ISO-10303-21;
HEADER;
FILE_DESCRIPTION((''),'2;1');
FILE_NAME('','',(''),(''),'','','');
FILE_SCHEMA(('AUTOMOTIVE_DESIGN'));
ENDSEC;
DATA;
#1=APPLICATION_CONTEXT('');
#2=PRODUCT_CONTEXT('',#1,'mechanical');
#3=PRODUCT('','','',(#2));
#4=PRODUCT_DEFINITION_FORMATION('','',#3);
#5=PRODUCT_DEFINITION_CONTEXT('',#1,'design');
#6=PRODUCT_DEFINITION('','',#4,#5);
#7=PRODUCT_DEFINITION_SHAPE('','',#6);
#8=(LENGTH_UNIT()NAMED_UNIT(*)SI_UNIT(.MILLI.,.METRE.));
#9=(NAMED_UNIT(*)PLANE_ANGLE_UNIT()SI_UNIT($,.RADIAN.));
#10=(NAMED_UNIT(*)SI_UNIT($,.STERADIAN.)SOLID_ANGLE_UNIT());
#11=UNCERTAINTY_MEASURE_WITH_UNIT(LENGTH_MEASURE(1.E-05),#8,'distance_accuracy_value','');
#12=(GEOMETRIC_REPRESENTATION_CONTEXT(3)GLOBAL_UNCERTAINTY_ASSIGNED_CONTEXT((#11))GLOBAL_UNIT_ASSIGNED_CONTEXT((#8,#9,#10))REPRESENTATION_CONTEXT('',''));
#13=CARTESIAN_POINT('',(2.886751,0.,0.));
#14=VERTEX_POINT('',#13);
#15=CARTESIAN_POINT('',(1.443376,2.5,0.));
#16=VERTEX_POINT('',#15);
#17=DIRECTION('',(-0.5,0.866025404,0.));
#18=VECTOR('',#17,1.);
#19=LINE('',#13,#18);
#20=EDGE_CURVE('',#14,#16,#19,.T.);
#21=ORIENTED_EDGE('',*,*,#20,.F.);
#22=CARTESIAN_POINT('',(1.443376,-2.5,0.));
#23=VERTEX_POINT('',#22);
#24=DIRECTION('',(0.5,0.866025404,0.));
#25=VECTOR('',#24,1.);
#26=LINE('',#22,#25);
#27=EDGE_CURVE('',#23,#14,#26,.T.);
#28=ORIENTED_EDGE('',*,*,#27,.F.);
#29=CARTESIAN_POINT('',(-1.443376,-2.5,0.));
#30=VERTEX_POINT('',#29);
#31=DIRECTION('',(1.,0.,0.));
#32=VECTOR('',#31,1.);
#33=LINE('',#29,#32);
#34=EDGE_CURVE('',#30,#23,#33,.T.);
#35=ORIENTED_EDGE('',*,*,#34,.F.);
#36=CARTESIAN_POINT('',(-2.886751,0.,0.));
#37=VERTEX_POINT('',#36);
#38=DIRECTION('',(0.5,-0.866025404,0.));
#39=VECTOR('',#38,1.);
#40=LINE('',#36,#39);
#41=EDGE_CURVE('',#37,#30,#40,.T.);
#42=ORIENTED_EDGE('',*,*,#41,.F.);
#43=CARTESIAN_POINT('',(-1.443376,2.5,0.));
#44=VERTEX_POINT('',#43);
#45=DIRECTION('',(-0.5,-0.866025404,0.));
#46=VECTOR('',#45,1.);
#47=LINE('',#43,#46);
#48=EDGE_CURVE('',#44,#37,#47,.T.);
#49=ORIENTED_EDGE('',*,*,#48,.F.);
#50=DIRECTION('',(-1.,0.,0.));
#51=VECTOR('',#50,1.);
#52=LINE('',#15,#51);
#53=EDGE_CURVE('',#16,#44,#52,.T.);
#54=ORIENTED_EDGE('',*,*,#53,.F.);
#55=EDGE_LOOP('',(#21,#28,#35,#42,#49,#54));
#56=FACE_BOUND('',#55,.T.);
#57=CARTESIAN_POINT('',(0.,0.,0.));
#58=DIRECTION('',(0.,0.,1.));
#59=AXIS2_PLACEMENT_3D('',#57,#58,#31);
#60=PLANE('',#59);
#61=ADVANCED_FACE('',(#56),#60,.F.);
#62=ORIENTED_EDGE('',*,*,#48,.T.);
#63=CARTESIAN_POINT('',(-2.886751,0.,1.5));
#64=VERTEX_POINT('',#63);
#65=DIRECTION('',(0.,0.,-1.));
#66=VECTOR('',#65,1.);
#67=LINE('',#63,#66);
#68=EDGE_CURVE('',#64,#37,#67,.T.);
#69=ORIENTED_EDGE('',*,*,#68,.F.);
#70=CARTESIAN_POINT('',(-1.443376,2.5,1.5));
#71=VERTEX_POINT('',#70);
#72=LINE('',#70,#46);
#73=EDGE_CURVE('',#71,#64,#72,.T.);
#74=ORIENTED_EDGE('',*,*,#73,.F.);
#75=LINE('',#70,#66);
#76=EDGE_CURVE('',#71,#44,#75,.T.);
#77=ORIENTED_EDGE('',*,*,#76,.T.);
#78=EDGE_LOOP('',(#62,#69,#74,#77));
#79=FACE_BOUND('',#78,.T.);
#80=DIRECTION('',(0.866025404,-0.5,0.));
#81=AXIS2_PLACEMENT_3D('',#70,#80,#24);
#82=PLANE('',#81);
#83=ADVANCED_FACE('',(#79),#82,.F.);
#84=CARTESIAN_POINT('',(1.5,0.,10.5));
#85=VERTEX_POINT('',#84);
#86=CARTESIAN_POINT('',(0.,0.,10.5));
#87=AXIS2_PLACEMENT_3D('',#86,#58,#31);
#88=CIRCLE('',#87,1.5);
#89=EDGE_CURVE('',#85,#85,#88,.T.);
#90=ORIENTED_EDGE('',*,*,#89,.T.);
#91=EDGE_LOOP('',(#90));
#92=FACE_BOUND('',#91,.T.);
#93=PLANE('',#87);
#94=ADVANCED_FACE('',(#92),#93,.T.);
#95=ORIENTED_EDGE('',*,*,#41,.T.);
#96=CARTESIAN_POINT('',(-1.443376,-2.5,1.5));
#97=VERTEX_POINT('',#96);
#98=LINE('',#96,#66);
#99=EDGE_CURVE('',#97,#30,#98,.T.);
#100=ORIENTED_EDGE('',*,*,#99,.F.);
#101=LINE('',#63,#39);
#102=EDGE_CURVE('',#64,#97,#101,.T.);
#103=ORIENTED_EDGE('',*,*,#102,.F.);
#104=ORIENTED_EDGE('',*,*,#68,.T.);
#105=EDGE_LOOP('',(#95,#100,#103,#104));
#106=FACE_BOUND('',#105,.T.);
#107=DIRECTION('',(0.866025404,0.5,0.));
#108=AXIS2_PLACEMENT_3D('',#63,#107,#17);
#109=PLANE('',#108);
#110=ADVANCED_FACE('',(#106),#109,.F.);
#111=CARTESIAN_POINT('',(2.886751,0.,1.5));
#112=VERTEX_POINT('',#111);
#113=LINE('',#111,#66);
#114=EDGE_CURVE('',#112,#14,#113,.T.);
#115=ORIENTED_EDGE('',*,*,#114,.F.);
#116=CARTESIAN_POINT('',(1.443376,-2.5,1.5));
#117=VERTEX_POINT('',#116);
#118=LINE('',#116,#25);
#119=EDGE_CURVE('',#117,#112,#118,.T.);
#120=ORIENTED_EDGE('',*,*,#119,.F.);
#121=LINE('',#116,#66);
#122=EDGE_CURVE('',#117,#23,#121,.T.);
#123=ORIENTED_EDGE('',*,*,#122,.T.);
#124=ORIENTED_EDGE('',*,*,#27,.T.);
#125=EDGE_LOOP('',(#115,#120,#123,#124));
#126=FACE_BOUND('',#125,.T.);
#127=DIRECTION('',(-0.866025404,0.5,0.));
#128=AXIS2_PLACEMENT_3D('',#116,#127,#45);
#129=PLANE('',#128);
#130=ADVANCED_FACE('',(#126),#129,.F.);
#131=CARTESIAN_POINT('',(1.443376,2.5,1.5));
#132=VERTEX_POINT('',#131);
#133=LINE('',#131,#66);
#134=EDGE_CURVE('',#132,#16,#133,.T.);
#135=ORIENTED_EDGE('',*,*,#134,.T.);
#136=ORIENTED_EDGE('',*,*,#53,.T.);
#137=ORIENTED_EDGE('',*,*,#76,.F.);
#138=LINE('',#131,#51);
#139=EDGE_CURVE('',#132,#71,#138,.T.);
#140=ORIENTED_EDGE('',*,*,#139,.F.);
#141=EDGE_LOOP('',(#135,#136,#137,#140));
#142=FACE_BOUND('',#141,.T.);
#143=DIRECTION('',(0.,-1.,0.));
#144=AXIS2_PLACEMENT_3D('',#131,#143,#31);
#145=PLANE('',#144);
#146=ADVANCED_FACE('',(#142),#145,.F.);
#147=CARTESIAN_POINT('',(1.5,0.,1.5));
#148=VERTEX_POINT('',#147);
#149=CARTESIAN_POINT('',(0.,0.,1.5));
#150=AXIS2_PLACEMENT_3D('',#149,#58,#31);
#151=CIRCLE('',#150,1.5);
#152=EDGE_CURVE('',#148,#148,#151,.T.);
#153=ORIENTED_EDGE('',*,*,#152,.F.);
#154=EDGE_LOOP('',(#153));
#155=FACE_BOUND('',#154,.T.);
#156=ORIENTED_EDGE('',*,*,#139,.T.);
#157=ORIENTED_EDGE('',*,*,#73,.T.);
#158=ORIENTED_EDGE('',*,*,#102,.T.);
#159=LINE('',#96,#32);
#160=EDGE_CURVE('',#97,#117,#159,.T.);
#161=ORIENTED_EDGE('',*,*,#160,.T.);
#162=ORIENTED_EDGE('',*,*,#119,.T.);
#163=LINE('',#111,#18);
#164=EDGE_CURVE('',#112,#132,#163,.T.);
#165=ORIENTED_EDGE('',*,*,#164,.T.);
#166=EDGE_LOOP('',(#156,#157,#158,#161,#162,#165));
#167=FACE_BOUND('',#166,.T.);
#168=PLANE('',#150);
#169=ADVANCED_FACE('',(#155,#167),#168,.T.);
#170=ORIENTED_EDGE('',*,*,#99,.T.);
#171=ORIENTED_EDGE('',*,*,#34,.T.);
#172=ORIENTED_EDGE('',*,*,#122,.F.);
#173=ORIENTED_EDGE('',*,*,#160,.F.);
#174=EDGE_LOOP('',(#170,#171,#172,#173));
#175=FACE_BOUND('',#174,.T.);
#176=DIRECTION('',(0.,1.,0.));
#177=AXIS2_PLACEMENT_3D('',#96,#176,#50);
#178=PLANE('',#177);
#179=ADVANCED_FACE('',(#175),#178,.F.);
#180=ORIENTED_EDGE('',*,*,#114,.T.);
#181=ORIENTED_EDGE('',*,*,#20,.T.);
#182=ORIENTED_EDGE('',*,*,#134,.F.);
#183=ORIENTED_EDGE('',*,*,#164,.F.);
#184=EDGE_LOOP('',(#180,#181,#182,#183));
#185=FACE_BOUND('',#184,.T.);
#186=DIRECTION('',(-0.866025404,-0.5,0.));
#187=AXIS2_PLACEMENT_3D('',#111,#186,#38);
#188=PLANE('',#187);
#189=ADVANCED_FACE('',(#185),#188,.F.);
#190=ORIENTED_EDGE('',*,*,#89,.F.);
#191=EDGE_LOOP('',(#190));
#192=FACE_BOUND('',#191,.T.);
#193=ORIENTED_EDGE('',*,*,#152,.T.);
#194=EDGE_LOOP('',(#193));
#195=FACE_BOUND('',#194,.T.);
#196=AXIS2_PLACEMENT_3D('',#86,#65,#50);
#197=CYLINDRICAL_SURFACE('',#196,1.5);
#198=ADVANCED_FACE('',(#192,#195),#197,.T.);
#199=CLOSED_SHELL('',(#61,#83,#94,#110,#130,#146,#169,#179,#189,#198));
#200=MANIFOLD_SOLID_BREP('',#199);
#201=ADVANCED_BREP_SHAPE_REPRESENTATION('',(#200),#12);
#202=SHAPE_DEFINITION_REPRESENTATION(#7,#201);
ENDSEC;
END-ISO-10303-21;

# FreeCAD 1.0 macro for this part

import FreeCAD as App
import Part
import Sketcher
from FreeCAD import Vector
Q = App.Units.Quantity


def add_polygon(sketch, points):
    """Adds a closed chain of lines whose ends are joined by coincident constraints."""
    first, n = sketch.GeometryCount, len(points)
    for a, b in zip(points, points[1:] + points[:1]):
        sketch.addGeometry(Part.LineSegment(App.Vector(*a, 0), App.Vector(*b, 0)), False)
    for i in range(n):
        sketch.addConstraint(Sketcher.Constraint("Coincident", first + i, 2, first + (i + 1) % n, 1))

doc = App.newDocument("Part")
params = doc.addObject("Spreadsheet::Sheet", "Params")
for row, (alias, value) in enumerate([
    ("pad1_length", "1.5 mm"),
    ("sketch2_diameter", "3 mm"),
    ("pad2_length", "9 mm"),
], start=1):
    params.set(f"A{row}", alias)
    params.set(f"B{row}", "=" + value)
    params.setAlias(f"B{row}", alias)

body = doc.addObject("PartDesign::Body", "Body")

sketch1 = doc.addObject("Sketcher::SketchObject", "Sketch")
body.addObject(sketch1)
sketch1.AttachmentSupport = (doc.XY_Plane, [""])
sketch1.MapMode = "FlatFace"
add_polygon(sketch1, [(2.9, 0), (1.4, 2.5), (-1.4, 2.5), (-2.9, 0), (-1.4, -2.5), (1.4, -2.5)])
sketch1.addConstraint(Sketcher.Constraint("Horizontal", 1))
sketch1.addConstraint(Sketcher.Constraint("Horizontal", 4))
sketch1.addConstraint(Sketcher.Constraint("Symmetric", 0, 2, 3, 2, -1, 1))
sketch1.addConstraint(Sketcher.Constraint("Symmetric", 2, 2, 5, 2, -1, 1))
sketch1.addConstraint(Sketcher.Constraint("PointOnObject", 2, 2, -1))
sketch1.addConstraint(Sketcher.Constraint("Parallel", 2, 5))
sketch1.addConstraint(Sketcher.Constraint("Vertical", 1, 2, 3, 2))
sketch1.addConstraint(Sketcher.Constraint("Angle", 0, Q("120 deg")))
sketch1.addConstraint(Sketcher.Constraint("DistanceY", 3, 2, 1, 2, Q("5 mm")))
sketch1.addConstraint(Sketcher.Constraint("DistanceX", 1, 2, 1, 1, Q("2.886751 mm")))
pad1 = doc.addObject("PartDesign::Pad", "Pad")
body.addObject(pad1)
pad1.Profile = sketch1
pad1.setExpression("Length", "Params.pad1_length")

sketch2 = doc.addObject("Sketcher::SketchObject", "Sketch001")
body.addObject(sketch2)
sketch2.AttachmentSupport = (doc.XY_Plane, [""])
sketch2.MapMode = "FlatFace"
sketch2.AttachmentOffset = App.Placement(Vector(0, 0, 1.5), App.Rotation())
sketch2.addGeometry(Part.Circle(Vector(0, 0, 0), Vector(0, 0, 1), 1.5), False)
sketch2.addConstraint(Sketcher.Constraint("Coincident", 0, 3, -1, 1))
sketch2.addConstraint(Sketcher.Constraint("Diameter", 0, Q("3 mm")))
sketch2.setExpression("Constraints[1]", "Params.sketch2_diameter")
pad2 = doc.addObject("PartDesign::Pad", "Pad001")
body.addObject(pad2)
pad2.Profile = sketch2
pad2.setExpression("Length", "Params.pad2_length")

doc.recompute()
